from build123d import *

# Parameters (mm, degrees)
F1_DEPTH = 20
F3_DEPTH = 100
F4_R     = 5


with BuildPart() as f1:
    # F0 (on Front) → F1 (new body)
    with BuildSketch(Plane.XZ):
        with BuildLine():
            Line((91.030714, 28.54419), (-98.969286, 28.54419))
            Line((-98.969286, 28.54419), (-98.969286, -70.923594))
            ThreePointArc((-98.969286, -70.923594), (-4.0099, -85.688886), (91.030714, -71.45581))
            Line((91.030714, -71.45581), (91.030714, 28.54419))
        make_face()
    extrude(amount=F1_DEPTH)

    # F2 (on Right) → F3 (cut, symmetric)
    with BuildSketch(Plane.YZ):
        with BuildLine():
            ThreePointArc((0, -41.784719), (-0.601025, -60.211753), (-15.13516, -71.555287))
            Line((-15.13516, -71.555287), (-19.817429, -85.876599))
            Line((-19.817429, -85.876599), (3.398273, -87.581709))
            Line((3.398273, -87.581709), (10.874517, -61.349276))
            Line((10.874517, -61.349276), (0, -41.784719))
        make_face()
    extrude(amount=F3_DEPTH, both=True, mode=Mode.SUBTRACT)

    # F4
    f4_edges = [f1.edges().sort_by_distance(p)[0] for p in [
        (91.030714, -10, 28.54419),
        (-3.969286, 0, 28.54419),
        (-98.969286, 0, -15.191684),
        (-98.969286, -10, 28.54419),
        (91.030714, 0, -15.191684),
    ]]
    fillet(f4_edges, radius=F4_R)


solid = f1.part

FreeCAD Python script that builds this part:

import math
import FreeCAD as App
import Part
import Sketcher


def edges_at(feature, points):
    """Names of the edges that pass closest to the given points."""
    edges = feature.Shape.Edges
    near = lambda p: min(range(len(edges)), key=lambda i: edges[i].distToShape(Part.Vertex(*p))[0])
    return sorted({f"Edge{near(p) + 1}" for p in points})

doc = App.newDocument("Part")
body = doc.addObject("PartDesign::Body", "Body")

# Sketch on XZ plane
sketch1 = body.newObject("Sketcher::SketchObject", "Sketch")
sketch1.AttachmentSupport = (doc.getObject("XZ_Plane"), [""])
sketch1.MapMode = "FlatFace"
sketch1.addGeometry([
    Part.LineSegment(App.Vector(91, 29, 0), App.Vector(-99, 29, 0)),
    Part.LineSegment(App.Vector(-99, 29, 0), App.Vector(-99, -71, 0)),
    Part.ArcOfCircle(Part.Circle(App.Vector(-3, 233, 0), App.Vector(0, 0, 1), 318), math.radians(-108), math.radians(-73)),
    Part.LineSegment(App.Vector(91, -71, 0), App.Vector(91, 29, 0)),
], False)
sketch1.addConstraint([
    Sketcher.Constraint("Coincident", 0, 2, 1, 1),
    Sketcher.Constraint("Coincident", 1, 2, 2, 1),
    Sketcher.Constraint("Coincident", 2, 2, 3, 1),
    Sketcher.Constraint("Coincident", 3, 2, 0, 1),
    Sketcher.Constraint("Horizontal", 0),
    Sketcher.Constraint("Vertical", 1),
    Sketcher.Constraint("Vertical", 3),
    Sketcher.Constraint("DistanceX", 0, 2, 0, 1, 190.0),
    Sketcher.Constraint("DistanceY", 3, 1, 3, 2, 100.0),
    Sketcher.Constraint("Radius", 2, 318.475252),
    Sketcher.Constraint("DistanceY", 1, 2, 1, 1, 99.467784),
    Sketcher.Constraint("DistanceX", 2, 3, -1, 1, 3.117811),
    Sketcher.Constraint("DistanceY", -1, 1, 0, 2, 28.54419),
])
pad1 = body.newObject("PartDesign::Pad", "Pad")
pad1.Profile = sketch1
pad1.Length = 20

# Sketch on YZ plane
sketch2 = body.newObject("Sketcher::SketchObject", "Sketch001")
sketch2.AttachmentSupport = (doc.getObject("YZ_Plane"), [""])
sketch2.MapMode = "FlatFace"
sketch2.addGeometry([
    Part.ArcOfCircle(Part.Circle(App.Vector(-20, -50, 0), App.Vector(0, 0, 1), 22), math.radians(-77), math.radians(23)),  # 0
    Part.LineSegment(App.Vector(-15, -72, 0), App.Vector(-20, -86, 0)),  # 1
    Part.LineSegment(App.Vector(-20, -86, 0), App.Vector(3, -88, 0)),  # 2
    Part.LineSegment(App.Vector(3, -88, 0), App.Vector(11, -61, 0)),  # 3
    Part.LineSegment(App.Vector(11, -61, 0), App.Vector(0, -42, 0)),  # 4
], False)
sketch2.addConstraint([
    Sketcher.Constraint("Coincident", 0, 1, 1, 1),
    Sketcher.Constraint("Coincident", 1, 2, 2, 1),
    Sketcher.Constraint("Coincident", 2, 2, 3, 1),
    Sketcher.Constraint("Coincident", 3, 2, 4, 1),
    Sketcher.Constraint("Coincident", 4, 2, 0, 2),
    Sketcher.Constraint("PointOnObject", 4, 2, -2),
    Sketcher.Constraint("Distance", 3, 27.277001),
    Sketcher.Constraint("Radius", 0, 21.747245),
    Sketcher.Constraint("DistanceY", 1, 2, -1, 1, 85.876599),
    Sketcher.Constraint("DistanceX", 0, 3, -1, 1, 19.986832),
    Sketcher.Constraint("DistanceX", 0, 1, -1, 1, 15.13516),
    Sketcher.Constraint("DistanceX", 1, 2, -1, 1, 19.817429),
    Sketcher.Constraint("DistanceY", 2, 2, -1, 1, 87.581709),
    Sketcher.Constraint("DistanceY", 4, 2, -1, 1, 41.784719),
    Sketcher.Constraint("DistanceY", 0, 1, 3, 2, 10.206011),
    Sketcher.Constraint("DistanceX", 0, 3, 3, 2, 30.861349),
])
pocket1 = body.newObject("PartDesign::Pocket", "Pocket")
pocket1.Profile = sketch2
pocket1.Length = 200
pocket1.Midplane = True
doc.recompute()

fillet = body.newObject("PartDesign::Fillet", "Fillet")
fillet.Base = (pocket1, edges_at(pocket1, [
    (91.031, -10, 28.544),
    (-3.969, 0, 28.544),
    (-98.969, 0, -15.192),
    (-98.969, -10, 28.544),
    (91.031, 0, -15.192),
]))
fillet.Radius = 5

doc.recompute()
